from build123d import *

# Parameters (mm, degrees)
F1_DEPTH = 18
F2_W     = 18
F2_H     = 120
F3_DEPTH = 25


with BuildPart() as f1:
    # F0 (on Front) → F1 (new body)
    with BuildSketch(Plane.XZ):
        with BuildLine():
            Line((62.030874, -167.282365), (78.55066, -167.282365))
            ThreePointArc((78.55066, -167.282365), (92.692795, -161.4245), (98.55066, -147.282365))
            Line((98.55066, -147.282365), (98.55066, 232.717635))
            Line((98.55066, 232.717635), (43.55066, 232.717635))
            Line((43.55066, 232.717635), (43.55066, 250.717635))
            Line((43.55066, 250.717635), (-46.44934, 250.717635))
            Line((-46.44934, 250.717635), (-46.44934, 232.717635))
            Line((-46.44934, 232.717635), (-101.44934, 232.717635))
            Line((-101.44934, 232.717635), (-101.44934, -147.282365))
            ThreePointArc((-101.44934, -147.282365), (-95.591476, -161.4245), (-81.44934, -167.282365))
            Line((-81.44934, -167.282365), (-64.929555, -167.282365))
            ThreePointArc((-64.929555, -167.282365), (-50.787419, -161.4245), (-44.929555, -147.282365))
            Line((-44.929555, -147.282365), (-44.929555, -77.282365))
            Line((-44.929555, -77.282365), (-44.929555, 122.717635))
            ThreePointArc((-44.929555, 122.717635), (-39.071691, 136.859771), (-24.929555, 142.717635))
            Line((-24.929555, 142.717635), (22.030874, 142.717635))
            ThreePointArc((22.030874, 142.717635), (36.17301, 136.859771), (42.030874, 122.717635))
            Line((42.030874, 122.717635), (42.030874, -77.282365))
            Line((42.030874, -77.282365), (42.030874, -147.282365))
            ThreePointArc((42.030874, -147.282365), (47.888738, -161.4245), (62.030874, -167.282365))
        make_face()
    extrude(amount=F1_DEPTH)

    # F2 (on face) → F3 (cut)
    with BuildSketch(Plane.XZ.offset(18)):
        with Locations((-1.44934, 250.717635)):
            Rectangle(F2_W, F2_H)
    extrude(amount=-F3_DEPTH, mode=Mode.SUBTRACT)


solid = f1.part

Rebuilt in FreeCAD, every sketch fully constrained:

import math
import FreeCAD as App
import Part
import Sketcher
from FreeCAD import Vector
Q = App.Units.Quantity


def add_polygon(sketch, points):
    """Adds a closed chain of lines whose ends are joined by coincident constraints."""
    first, n = sketch.GeometryCount, len(points)
    for a, b in zip(points, points[1:] + points[:1]):
        sketch.addGeometry(Part.LineSegment(App.Vector(*a, 0), App.Vector(*b, 0)), False)
    for i in range(n):
        sketch.addConstraint(Sketcher.Constraint("Coincident", first + i, 2, first + (i + 1) % n, 1))

doc = App.newDocument("Part")
body = doc.addObject("PartDesign::Body", "Body")

sketch1 = body.newObject("Sketcher::SketchObject", "Sketch")
sketch1.AttachmentSupport = (doc.getObject("XZ_Plane"), [""])
sketch1.MapMode = "FlatFace"
sketch1.addGeometry([
    Part.LineSegment(Vector(62, -167, 0), Vector(79, -167, 0)),
    Part.ArcOfCircle(Part.Circle(Vector(79, -147, 0), Vector(0, 0, 1), 20), math.radians(-90), math.radians(0)),
    Part.LineSegment(Vector(99, -147, 0), Vector(99, 233, 0)),
    Part.LineSegment(Vector(99, 233, 0), Vector(44, 233, 0)),
    Part.LineSegment(Vector(44, 233, 0), Vector(44, 251, 0)),
    Part.LineSegment(Vector(44, 251, 0), Vector(-46, 251, 0)),
    Part.LineSegment(Vector(-46, 251, 0), Vector(-46, 233, 0)),
    Part.LineSegment(Vector(-46, 233, 0), Vector(-101, 233, 0)),
    Part.LineSegment(Vector(-101, 233, 0), Vector(-101, -147, 0)),
    Part.ArcOfCircle(Part.Circle(Vector(-81, -147, 0), Vector(0, 0, 1), 20), math.radians(-180), math.radians(-90)),
    Part.LineSegment(Vector(-81, -167, 0), Vector(-65, -167, 0)),
    Part.ArcOfCircle(Part.Circle(Vector(-65, -147, 0), Vector(0, 0, 1), 20), math.radians(-90), math.radians(0)),
    Part.LineSegment(Vector(-45, -147, 0), Vector(-45, 123, 0)),
    Part.ArcOfCircle(Part.Circle(Vector(-25, 123, 0), Vector(0, 0, 1), 20), math.radians(90), math.radians(180)),
    Part.LineSegment(Vector(-25, 143, 0), Vector(22, 143, 0)),
    Part.ArcOfCircle(Part.Circle(Vector(22, 123, 0), Vector(0, 0, 1), 20), math.radians(0), math.radians(90)),
    Part.LineSegment(Vector(42, 123, 0), Vector(42, -147, 0)),
    Part.ArcOfCircle(Part.Circle(Vector(62, -147, 0), Vector(0, 0, 1), 20), math.radians(-180), math.radians(-90)),
], False)
sketch1.addConstraint([
    Sketcher.Constraint("Tangent", 0, 2, 1, 1),
    Sketcher.Constraint("Tangent", 1, 2, 2, 1),
    Sketcher.Constraint("Coincident", 2, 2, 3, 1),
    Sketcher.Constraint("Coincident", 3, 2, 4, 1),
    Sketcher.Constraint("Coincident", 4, 2, 5, 1),
    Sketcher.Constraint("Coincident", 5, 2, 6, 1),
    Sketcher.Constraint("Coincident", 6, 2, 7, 1),
    Sketcher.Constraint("Coincident", 7, 2, 8, 1),
    Sketcher.Constraint("Tangent", 8, 2, 9, 1),
    Sketcher.Constraint("Tangent", 9, 2, 10, 1),
    Sketcher.Constraint("Tangent", 10, 2, 11, 1),
    Sketcher.Constraint("Tangent", 11, 2, 12, 1),
    Sketcher.Constraint("Tangent", 12, 2, 13, 2),
    Sketcher.Constraint("Tangent", 13, 1, 14, 1),
    Sketcher.Constraint("Tangent", 14, 2, 15, 2),
    Sketcher.Constraint("Tangent", 15, 1, 16, 1),
    Sketcher.Constraint("Tangent", 16, 2, 17, 1),
    Sketcher.Constraint("Tangent", 17, 2, 0, 1),
    Sketcher.Constraint("Horizontal", 0),
    Sketcher.Constraint("Vertical", 2),
    Sketcher.Constraint("Horizontal", 3),
    Sketcher.Constraint("Vertical", 4),
    Sketcher.Constraint("Horizontal", 5),
    Sketcher.Constraint("Vertical", 6),
    Sketcher.Constraint("Horizontal", 7),
    Sketcher.Constraint("Vertical", 8),
    Sketcher.Constraint("Horizontal", 10),
    Sketcher.Constraint("Vertical", 12),
    Sketcher.Constraint("Horizontal", 14),
    Sketcher.Constraint("Vertical", 16),
    Sketcher.Constraint("Equal", 1, 9),
    Sketcher.Constraint("Equal", 9, 11),
    Sketcher.Constraint("Equal", 11, 13),
    Sketcher.Constraint("Equal", 13, 15),
    Sketcher.Constraint("Equal", 15, 17),
    Sketcher.Constraint("Horizontal", 1, 3, 9, 3),
    Sketcher.Constraint("Horizontal", 3, 2, 6, 2),
    Sketcher.Constraint("Equal", 3, 7),
    Sketcher.Constraint("Equal", 0, 10),
    Sketcher.Constraint("Radius", 9, Q("20 mm")),
    Sketcher.Constraint("DistanceX", 3, 2, 3, 1, Q("55 mm")),
    Sketcher.Constraint("DistanceX", 5, 2, 5, 1, Q("90 mm")),
    Sketcher.Constraint("DistanceY", 2, 1, 2, 2, Q("380 mm")),
    Sketcher.Constraint("DistanceY", 4, 1, 4, 2, Q("18 mm")),
    Sketcher.Constraint("DistanceY", 12, 1, 12, 2, Q("270 mm")),
    Sketcher.Constraint("DistanceX", 14, 1, 14, 2, Q("46.960429 mm")),
    Sketcher.Constraint("DistanceX", 9, 3, -1, 1, Q("81.44934 mm")),
    Sketcher.Constraint("DistanceY", 1, 3, -1, 1, Q("147.282363 mm")),
])
pad1 = body.newObject("PartDesign::Pad", "Pad")
pad1.Profile = sketch1
pad1.Length = 18

sketch2 = body.newObject("Sketcher::SketchObject", "Sketch001")
sketch2.AttachmentSupport = (doc.getObject("XZ_Plane"), [""])
sketch2.MapMode = "FlatFace"
sketch2.AttachmentOffset = App.Placement(Vector(0, 0, 18), App.Rotation())
add_polygon(sketch2, [(-10, 311), (-10, 191), (8, 191), (8, 311)])
sketch2.addConstraint([
    Sketcher.Constraint("Vertical", 0),
    Sketcher.Constraint("Horizontal", 1),
    Sketcher.Constraint("Vertical", 2),
    Sketcher.Constraint("Horizontal", 3),
    Sketcher.Constraint("DistanceX", 1, 1, 1, 2, Q("18 mm")),
    Sketcher.Constraint("DistanceY", 0, 2, 0, 1, Q("120 mm")),
    Sketcher.Constraint("DistanceX", 0, 2, -1, 1, Q("10.44934 mm")),
    Sketcher.Constraint("DistanceY", -1, 1, 0, 2, Q("190.717635 mm")),
])
pocket1 = body.newObject("PartDesign::Pocket", "Pocket")
pocket1.Profile = sketch2
pocket1.Length = 25

doc.recompute()
